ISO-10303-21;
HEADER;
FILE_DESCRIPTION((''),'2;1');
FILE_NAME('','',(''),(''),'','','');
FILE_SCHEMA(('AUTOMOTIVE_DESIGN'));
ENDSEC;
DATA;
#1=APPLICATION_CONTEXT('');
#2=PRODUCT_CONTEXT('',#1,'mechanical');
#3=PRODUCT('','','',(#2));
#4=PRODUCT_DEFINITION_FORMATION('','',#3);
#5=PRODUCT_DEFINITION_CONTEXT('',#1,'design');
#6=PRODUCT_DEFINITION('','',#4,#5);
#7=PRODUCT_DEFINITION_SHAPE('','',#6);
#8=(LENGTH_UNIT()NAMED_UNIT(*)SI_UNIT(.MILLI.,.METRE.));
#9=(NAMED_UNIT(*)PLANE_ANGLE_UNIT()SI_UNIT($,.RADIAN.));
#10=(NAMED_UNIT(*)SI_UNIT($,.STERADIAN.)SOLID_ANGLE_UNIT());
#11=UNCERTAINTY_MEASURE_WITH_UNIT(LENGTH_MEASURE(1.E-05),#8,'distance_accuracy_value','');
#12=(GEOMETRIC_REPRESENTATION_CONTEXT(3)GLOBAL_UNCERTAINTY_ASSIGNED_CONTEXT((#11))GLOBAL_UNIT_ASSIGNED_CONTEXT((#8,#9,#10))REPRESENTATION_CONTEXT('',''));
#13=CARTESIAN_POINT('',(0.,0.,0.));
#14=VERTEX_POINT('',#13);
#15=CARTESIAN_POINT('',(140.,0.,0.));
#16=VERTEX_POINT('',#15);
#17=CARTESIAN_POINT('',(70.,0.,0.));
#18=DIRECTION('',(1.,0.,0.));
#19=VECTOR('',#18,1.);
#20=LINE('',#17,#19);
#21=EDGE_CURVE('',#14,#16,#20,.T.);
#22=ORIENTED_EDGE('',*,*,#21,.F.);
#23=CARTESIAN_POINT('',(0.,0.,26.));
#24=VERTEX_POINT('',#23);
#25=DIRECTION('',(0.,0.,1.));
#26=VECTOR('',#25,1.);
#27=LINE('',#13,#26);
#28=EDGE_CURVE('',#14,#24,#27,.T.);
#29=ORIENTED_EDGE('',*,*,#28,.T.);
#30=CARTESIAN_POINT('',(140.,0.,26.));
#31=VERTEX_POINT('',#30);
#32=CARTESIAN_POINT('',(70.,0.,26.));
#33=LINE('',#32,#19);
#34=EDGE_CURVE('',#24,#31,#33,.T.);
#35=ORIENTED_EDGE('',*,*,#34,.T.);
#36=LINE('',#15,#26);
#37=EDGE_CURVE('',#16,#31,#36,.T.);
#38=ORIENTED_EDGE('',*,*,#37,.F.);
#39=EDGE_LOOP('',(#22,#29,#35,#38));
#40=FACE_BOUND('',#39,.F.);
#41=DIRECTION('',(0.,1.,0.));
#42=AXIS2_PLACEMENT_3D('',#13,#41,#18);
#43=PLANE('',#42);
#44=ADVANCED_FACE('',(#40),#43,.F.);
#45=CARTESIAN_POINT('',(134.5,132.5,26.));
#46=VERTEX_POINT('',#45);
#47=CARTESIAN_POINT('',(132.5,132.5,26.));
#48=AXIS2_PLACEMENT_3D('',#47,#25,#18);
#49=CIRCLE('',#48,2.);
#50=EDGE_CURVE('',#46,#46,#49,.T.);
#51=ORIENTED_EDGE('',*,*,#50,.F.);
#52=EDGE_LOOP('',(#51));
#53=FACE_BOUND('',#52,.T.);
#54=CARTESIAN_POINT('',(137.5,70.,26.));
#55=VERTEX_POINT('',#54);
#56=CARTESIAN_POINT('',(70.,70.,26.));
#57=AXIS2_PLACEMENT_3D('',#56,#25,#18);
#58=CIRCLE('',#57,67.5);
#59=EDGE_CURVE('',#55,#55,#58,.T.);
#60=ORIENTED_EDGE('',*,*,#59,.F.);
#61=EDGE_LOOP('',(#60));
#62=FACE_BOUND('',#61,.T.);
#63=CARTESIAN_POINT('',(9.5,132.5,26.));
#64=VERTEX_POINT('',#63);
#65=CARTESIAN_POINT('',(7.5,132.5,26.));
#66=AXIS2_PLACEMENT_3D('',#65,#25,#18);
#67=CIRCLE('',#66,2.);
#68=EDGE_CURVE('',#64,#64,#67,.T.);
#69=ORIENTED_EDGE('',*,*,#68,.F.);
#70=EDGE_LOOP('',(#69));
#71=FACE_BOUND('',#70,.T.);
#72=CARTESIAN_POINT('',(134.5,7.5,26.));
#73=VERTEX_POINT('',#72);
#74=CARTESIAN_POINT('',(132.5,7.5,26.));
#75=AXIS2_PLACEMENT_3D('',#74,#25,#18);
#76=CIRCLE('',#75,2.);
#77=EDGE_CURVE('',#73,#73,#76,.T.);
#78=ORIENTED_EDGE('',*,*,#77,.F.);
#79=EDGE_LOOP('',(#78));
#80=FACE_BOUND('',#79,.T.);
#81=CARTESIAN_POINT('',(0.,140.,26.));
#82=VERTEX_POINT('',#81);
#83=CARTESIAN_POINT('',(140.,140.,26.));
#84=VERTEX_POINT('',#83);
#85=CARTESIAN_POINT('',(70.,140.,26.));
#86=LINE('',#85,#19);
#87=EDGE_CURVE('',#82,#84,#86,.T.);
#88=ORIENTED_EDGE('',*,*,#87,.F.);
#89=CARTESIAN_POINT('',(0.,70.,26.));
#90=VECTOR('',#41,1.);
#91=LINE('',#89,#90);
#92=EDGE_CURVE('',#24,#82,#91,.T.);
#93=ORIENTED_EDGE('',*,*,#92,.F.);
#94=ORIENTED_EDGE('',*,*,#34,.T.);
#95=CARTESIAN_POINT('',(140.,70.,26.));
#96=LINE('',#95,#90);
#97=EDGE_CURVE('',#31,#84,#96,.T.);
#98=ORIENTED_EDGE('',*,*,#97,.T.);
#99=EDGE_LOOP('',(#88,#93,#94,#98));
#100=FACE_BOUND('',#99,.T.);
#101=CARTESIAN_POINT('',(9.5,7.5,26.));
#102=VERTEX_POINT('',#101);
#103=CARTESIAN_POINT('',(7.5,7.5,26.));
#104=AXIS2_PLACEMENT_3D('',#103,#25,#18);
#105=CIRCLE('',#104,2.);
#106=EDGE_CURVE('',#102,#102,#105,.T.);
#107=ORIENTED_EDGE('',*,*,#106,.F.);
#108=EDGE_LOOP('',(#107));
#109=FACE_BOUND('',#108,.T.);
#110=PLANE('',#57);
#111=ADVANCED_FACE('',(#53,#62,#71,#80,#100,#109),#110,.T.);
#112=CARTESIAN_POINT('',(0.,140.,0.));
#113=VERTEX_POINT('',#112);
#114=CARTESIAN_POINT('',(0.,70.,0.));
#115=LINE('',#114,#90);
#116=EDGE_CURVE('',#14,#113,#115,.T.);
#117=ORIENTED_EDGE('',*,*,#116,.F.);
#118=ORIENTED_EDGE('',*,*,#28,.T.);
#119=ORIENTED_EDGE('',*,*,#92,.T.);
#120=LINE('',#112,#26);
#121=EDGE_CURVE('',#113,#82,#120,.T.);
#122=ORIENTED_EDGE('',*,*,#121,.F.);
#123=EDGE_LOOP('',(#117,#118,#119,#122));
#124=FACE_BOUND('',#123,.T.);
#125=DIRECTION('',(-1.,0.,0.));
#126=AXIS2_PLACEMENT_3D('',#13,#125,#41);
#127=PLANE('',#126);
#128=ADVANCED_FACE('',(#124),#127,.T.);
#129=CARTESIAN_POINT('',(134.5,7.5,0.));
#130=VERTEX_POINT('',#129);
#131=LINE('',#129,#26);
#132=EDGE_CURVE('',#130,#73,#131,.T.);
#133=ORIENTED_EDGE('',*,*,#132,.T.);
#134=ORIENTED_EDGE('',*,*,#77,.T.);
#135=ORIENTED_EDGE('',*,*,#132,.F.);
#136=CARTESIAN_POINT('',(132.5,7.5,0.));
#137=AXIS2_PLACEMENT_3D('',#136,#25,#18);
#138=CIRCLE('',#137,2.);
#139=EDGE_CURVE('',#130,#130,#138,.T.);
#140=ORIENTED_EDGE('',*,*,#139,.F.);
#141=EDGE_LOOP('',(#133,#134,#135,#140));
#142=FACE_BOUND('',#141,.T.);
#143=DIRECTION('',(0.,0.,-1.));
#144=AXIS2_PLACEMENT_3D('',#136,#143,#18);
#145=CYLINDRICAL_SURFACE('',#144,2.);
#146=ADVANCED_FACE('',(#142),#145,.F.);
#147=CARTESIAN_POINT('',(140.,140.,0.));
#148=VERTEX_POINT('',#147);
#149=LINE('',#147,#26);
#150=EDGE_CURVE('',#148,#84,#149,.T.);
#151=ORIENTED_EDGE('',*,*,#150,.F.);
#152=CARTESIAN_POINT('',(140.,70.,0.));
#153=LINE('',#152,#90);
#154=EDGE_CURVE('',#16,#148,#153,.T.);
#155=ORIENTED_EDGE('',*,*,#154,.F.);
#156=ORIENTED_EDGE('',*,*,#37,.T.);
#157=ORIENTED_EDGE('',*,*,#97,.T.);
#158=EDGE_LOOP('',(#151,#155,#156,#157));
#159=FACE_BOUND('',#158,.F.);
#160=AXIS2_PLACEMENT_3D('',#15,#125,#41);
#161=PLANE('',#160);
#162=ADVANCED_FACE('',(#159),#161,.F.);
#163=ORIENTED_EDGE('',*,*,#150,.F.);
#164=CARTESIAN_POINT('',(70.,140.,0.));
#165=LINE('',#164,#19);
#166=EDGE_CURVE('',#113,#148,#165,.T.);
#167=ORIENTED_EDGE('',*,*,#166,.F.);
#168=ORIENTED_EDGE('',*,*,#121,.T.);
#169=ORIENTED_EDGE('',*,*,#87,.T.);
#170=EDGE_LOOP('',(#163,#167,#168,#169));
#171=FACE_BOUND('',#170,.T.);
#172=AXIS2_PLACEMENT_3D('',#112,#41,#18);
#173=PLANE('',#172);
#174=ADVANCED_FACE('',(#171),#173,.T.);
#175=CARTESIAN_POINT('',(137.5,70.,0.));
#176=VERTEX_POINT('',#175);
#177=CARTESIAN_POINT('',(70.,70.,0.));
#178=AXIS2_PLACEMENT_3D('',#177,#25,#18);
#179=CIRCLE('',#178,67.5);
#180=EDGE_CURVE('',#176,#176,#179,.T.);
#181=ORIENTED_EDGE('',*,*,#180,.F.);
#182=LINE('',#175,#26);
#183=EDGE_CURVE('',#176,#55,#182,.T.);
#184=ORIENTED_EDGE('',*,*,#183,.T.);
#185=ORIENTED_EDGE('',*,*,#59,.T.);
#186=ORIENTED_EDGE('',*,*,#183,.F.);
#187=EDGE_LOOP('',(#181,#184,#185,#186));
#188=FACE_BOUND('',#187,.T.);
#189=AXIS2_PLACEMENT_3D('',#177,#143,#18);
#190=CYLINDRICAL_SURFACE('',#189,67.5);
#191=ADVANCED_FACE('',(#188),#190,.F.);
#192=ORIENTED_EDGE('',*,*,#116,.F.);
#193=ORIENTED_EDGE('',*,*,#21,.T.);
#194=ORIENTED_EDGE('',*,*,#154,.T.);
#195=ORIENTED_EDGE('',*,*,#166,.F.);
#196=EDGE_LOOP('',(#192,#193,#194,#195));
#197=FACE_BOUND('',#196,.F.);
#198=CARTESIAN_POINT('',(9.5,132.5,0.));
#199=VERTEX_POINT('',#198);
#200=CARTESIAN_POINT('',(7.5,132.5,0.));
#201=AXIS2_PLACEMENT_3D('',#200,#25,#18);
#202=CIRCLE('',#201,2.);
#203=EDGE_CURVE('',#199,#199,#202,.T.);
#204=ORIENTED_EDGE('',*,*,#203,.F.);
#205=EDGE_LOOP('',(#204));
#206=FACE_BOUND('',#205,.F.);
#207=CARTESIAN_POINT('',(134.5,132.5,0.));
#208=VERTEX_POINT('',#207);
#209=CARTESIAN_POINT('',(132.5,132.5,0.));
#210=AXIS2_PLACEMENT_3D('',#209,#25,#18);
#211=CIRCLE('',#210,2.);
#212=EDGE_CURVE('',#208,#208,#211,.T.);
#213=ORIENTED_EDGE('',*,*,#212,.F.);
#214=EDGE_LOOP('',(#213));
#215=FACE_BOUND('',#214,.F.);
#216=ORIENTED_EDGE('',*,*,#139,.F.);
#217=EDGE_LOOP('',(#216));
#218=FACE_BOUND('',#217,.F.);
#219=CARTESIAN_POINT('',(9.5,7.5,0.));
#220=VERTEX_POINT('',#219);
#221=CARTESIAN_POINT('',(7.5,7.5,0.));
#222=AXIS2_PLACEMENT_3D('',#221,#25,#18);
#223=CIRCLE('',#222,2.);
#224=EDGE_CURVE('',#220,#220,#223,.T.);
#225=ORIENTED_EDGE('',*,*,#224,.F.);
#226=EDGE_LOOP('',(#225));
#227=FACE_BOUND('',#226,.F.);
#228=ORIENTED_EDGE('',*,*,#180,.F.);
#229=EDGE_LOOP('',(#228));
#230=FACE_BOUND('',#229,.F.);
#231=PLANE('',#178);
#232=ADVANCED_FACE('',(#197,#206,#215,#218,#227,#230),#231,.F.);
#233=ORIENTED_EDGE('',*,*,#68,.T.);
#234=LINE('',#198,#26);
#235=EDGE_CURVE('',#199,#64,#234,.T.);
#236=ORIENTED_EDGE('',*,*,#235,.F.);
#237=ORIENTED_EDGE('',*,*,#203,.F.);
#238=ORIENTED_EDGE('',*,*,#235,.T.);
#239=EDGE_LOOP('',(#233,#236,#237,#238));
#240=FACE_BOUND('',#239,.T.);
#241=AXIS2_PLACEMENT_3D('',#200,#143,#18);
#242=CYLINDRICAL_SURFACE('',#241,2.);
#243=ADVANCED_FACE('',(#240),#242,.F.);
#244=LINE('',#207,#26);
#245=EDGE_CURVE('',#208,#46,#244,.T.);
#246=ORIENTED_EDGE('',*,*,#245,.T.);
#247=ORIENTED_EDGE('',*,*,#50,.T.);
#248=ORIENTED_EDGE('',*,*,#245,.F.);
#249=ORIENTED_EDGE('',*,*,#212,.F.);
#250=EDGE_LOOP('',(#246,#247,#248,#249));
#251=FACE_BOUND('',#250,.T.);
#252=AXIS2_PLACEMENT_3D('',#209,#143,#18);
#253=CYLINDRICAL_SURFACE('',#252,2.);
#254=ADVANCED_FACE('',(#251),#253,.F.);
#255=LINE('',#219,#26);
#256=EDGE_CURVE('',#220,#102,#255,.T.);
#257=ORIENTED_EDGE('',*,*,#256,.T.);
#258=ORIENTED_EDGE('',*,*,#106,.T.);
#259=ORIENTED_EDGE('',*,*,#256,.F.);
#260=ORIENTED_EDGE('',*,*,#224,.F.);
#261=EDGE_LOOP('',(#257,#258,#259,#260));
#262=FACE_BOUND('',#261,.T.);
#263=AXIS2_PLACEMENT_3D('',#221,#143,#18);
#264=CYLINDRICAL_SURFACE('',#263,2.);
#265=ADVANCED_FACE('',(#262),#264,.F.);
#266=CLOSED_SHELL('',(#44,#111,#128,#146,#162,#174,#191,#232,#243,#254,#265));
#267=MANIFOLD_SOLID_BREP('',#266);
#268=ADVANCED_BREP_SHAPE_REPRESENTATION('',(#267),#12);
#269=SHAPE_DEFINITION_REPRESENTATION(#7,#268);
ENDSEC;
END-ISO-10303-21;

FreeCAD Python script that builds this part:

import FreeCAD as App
import Part
import Sketcher

V = App.Vector

doc = App.newDocument("Part")
body = doc.addObject("PartDesign::Body", "Body")

# Sketch on XY plane
sketch1 = body.newObject("Sketcher::SketchObject", "Sketch")
sketch1.AttachmentSupport = (doc.getObject("XY_Plane"), [""])
sketch1.MapMode = "FlatFace"
sketch1.addGeometry([
    Part.LineSegment(V(0, 140, 0), V(0, 0, 0)),  # 0
    Part.LineSegment(V(0, 0, 0), V(140, 0, 0)),  # 1
    Part.LineSegment(V(140, 0, 0), V(140, 140, 0)),  # 2
    Part.LineSegment(V(140, 140, 0), V(0, 140, 0)),  # 3
    Part.Circle(V(7.5, 7.5, 0), V(0, 0, 1), 2),  # 4
    Part.Circle(V(132.5, 7.5, 0), V(0, 0, 1), 2),  # 5
    Part.Circle(V(7.5, 132.5, 0), V(0, 0, 1), 2),  # 6
    Part.Circle(V(70, 70, 0), V(0, 0, 1), 67.5),  # 7
    Part.Circle(V(132.5, 132.5, 0), V(0, 0, 1), 2),  # 8
], False)
sketch1.addConstraint([
    Sketcher.Constraint("Coincident", 0, 2, 1, 1),
    Sketcher.Constraint("Coincident", 1, 2, 2, 1),
    Sketcher.Constraint("Coincident", 2, 2, 3, 1),
    Sketcher.Constraint("Coincident", 3, 2, 0, 1),
    Sketcher.Constraint("Vertical", 0),
    Sketcher.Constraint("Horizontal", 1),
    Sketcher.Constraint("Vertical", 2),
    Sketcher.Constraint("Horizontal", 3),
    Sketcher.Constraint("Coincident", 0, 2, -1, 1),
    Sketcher.Constraint("Equal", 4, 5),
    Sketcher.Constraint("Equal", 5, 6),
    Sketcher.Constraint("Equal", 6, 8),
    Sketcher.Constraint("Horizontal", 4, 3, 5, 3),
    Sketcher.Constraint("Horizontal", 6, 3, 8, 3),
    Sketcher.Constraint("Vertical", 4, 3, 6, 3),
    Sketcher.Constraint("Vertical", 5, 3, 8, 3),
    Sketcher.Constraint("Equal", 3, 0),
    Sketcher.Constraint("Diameter", 4, 4.0),
    Sketcher.Constraint("Diameter", 7, 135.0),
    Sketcher.Constraint("DistanceX", 1, 1, 1, 2, 140.0),
    Sketcher.Constraint("DistanceX", -1, 1, 7, 3, 70.0),
    Sketcher.Constraint("DistanceY", -1, 1, 7, 3, 70.0),
    Sketcher.Constraint("DistanceX", 4, 3, 5, 3, 125.0),
    Sketcher.Constraint("DistanceY", 4, 3, 6, 3, 125.0),
    Sketcher.Constraint("DistanceX", -1, 1, 4, 3, 7.5),
    Sketcher.Constraint("DistanceY", -1, 1, 4, 3, 7.5),
])
pad1 = body.newObject("PartDesign::Pad", "Pad")
pad1.Profile = sketch1
pad1.Length = 26

doc.recompute()
